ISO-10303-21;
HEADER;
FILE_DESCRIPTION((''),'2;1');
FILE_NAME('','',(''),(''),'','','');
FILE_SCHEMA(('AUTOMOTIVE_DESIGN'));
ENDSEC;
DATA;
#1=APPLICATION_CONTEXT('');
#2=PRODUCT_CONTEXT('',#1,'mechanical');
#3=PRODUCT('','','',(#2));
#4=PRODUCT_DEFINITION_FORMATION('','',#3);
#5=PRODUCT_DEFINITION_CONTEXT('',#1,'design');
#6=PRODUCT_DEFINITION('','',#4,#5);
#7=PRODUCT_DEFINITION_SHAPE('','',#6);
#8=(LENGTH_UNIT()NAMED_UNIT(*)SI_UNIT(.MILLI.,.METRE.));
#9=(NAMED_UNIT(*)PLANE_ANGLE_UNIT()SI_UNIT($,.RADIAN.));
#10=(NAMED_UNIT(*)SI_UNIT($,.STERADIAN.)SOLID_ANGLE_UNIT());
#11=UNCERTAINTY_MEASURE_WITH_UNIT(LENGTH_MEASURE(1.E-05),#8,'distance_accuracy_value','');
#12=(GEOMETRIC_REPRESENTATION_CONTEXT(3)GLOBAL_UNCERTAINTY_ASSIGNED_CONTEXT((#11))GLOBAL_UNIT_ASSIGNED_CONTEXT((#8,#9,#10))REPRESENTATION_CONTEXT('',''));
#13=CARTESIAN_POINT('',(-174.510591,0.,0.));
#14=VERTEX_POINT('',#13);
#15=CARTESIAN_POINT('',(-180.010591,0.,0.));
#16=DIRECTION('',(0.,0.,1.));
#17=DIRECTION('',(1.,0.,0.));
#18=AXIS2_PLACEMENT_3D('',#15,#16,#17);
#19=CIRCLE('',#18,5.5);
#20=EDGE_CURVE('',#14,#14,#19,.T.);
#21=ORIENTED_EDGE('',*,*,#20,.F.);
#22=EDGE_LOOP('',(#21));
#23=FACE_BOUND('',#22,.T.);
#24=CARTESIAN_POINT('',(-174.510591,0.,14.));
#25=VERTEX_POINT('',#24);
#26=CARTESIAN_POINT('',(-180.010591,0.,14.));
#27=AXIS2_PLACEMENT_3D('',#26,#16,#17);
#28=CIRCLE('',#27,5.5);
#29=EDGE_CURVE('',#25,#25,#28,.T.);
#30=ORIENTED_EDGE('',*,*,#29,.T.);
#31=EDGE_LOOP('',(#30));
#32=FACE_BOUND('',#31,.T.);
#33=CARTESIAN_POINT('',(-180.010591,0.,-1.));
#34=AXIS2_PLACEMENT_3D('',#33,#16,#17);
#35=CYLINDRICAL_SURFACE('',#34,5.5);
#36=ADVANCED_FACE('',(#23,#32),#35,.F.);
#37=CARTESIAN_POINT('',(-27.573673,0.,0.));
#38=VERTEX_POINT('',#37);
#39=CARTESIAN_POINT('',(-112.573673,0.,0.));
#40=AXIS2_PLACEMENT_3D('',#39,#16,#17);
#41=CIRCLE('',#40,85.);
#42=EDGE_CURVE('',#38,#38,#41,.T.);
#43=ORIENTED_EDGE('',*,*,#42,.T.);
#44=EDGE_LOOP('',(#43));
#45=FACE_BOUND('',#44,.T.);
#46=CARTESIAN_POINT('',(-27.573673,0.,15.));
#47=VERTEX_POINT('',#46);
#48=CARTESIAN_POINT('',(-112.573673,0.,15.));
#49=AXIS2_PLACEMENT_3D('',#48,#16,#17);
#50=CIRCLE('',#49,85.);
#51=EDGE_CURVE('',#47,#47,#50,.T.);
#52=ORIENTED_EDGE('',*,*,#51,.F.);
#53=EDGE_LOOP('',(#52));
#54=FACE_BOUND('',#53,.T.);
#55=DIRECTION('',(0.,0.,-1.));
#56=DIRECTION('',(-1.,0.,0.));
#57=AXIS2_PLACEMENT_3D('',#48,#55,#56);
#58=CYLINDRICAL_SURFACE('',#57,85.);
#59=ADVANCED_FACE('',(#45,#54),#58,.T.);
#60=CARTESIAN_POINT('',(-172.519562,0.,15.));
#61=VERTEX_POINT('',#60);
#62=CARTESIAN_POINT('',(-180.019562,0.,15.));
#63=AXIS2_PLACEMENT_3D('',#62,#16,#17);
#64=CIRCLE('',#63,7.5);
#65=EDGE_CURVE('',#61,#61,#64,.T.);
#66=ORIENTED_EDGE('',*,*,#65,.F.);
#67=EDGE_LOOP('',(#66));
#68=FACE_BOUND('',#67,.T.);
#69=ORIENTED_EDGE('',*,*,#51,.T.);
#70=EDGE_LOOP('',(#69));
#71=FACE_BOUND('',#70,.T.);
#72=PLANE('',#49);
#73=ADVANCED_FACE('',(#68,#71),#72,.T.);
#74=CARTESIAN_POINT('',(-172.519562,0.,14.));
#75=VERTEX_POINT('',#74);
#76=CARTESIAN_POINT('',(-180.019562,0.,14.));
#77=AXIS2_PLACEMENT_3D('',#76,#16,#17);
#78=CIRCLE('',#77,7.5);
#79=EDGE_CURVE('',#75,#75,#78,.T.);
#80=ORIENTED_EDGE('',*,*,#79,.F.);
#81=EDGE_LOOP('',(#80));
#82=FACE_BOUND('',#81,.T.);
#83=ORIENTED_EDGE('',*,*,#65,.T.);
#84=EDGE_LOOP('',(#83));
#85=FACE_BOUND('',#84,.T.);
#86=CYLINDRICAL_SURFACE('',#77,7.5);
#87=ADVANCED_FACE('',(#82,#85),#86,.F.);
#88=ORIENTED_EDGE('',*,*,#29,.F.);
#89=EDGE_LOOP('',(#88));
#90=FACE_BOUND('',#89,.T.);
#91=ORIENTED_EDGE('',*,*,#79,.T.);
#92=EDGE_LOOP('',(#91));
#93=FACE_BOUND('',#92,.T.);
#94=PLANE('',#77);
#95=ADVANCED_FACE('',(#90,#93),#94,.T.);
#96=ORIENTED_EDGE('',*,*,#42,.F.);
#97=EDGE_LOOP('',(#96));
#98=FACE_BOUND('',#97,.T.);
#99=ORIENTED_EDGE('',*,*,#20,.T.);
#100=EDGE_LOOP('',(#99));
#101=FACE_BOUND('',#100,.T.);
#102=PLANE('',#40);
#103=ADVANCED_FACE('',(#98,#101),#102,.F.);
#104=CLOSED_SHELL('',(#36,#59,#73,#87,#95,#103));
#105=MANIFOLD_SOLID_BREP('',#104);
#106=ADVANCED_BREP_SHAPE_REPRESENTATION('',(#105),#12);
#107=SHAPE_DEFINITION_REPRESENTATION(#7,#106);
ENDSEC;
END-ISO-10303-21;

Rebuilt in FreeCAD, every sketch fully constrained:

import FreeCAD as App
import Part
import Sketcher

V = App.Vector
Q = App.Units.Quantity

doc = App.newDocument("Part")
body = doc.addObject("PartDesign::Body", "Body")

sketch1 = doc.addObject("Sketcher::SketchObject", "Sketch")
body.addObject(sketch1)
sketch1.AttachmentSupport = (doc.XY_Plane, [""])
sketch1.MapMode = "FlatFace"
sketch1.addGeometry(Part.Circle(V(-112.573673, 0, 0), V(0, 0, 1), 85), False)
sketch1.addConstraint([
    Sketcher.Constraint("PointOnObject", 0, 3, -1),
    Sketcher.Constraint("Diameter", 0, Q("170 mm")),
    Sketcher.Constraint("DistanceX", 0, 3, -1, 1, Q("112.573673 mm")),
])
pad1 = doc.addObject("PartDesign::Pad", "Pad")
body.addObject(pad1)
pad1.Profile = sketch1
pad1.Length = 15

sketch2 = doc.addObject("Sketcher::SketchObject", "Sketch001")
body.addObject(sketch2)
sketch2.AttachmentSupport = (doc.XY_Plane, [""])
sketch2.MapMode = "FlatFace"
sketch2.AttachmentOffset = App.Placement(V(0, 0, 15), App.Rotation())
sketch2.addGeometry(Part.Circle(V(-180.019562, 0, 0), V(0, 0, 1), 7.5), False)
sketch2.addConstraint([
    Sketcher.Constraint("PointOnObject", 0, 3, -1),
    Sketcher.Constraint("Diameter", 0, Q("15 mm")),
    Sketcher.Constraint("DistanceX", 0, 3, -1, 1, Q("180.019562 mm")),
])
pocket1 = doc.addObject("PartDesign::Pocket", "Pocket")
body.addObject(pocket1)
pocket1.Profile = sketch2
pocket1.Length = 1

sketch3 = doc.addObject("Sketcher::SketchObject", "Sketch002")
body.addObject(sketch3)
sketch3.AttachmentSupport = (doc.XY_Plane, [""])
sketch3.MapMode = "FlatFace"
sketch3.AttachmentOffset = App.Placement(V(0, 0, 14), App.Rotation())
sketch3.addGeometry(Part.Circle(V(-180.010591, 0, 0), V(0, 0, 1), 5.5), False)
sketch3.addConstraint([
    Sketcher.Constraint("PointOnObject", 0, 3, -1),
    Sketcher.Constraint("Diameter", 0, Q("11 mm")),
    Sketcher.Constraint("DistanceX", 0, 3, -1, 1, Q("180.010591 mm")),
])
pocket2 = doc.addObject("PartDesign::Pocket", "Pocket001")
body.addObject(pocket2)
pocket2.Profile = sketch3
pocket2.Length = 15

doc.recompute()
